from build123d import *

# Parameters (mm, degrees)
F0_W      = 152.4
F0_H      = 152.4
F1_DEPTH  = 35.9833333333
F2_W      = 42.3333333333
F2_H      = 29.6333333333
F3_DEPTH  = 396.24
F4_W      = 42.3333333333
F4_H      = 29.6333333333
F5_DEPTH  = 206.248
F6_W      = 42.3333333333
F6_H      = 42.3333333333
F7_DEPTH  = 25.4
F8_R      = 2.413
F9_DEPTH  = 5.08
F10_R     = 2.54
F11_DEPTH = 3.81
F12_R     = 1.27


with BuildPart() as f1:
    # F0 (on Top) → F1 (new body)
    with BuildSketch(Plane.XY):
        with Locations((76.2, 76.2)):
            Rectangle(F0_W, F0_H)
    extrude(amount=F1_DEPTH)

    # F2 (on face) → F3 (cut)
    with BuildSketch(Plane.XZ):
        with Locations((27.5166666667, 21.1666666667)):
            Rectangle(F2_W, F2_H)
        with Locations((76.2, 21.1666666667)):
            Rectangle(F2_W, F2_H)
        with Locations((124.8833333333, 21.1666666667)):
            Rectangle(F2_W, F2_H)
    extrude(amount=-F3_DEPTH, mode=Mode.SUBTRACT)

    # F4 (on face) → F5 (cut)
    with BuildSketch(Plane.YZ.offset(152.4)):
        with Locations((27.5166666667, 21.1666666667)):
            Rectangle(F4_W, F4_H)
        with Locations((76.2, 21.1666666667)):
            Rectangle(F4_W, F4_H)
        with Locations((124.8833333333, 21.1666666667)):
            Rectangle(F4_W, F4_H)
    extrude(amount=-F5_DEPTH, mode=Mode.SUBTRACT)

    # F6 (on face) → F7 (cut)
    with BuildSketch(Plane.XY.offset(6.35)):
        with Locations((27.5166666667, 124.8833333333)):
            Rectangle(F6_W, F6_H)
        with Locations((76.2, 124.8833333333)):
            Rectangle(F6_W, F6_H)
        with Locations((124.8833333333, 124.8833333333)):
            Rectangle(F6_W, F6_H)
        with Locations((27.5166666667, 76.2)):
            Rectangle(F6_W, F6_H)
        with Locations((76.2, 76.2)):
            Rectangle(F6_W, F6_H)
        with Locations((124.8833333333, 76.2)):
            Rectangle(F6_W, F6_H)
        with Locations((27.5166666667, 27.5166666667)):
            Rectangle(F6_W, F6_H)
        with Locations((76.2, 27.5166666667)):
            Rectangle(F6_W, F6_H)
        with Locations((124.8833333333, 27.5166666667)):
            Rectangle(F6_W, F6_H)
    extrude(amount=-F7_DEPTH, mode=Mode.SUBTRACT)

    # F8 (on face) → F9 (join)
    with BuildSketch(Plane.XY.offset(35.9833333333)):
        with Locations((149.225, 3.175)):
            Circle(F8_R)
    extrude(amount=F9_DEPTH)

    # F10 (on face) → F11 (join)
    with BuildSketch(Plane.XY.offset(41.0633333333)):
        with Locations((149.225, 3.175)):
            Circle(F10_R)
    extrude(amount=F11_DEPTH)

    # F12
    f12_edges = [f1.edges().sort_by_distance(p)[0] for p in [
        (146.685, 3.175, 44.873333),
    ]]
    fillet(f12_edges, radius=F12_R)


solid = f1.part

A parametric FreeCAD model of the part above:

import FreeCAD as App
import Part
import Sketcher
Q = App.Units.Quantity


def edges_at(feature, points):
    """Names of the edges that pass closest to the given points."""
    edges = feature.Shape.Edges
    near = lambda p: min(range(len(edges)), key=lambda i: edges[i].distToShape(Part.Vertex(*p))[0])
    return sorted({f"Edge{near(p) + 1}" for p in points})


def add_polygon(sketch, points):
    """Adds a closed chain of lines whose ends are joined by coincident constraints."""
    first, n = sketch.GeometryCount, len(points)
    for a, b in zip(points, points[1:] + points[:1]):
        sketch.addGeometry(Part.LineSegment(App.Vector(*a, 0), App.Vector(*b, 0)), False)
    for i in range(n):
        sketch.addConstraint(Sketcher.Constraint("Coincident", first + i, 2, first + (i + 1) % n, 1))

doc = App.newDocument("Part")
body = doc.addObject("PartDesign::Body", "Body")

# Sketch on XY plane
sketch1 = body.newObject("Sketcher::SketchObject", "Sketch")
sketch1.AttachmentSupport = (doc.getObject("XY_Plane"), [""])
sketch1.MapMode = "FlatFace"
add_polygon(sketch1, [(0, 152), (0, 0), (152, 0), (152, 152)])  # lines 0-3
sketch1.addConstraint([
    Sketcher.Constraint("Vertical", 0),
    Sketcher.Constraint("Horizontal", 1),
    Sketcher.Constraint("Vertical", 2),
    Sketcher.Constraint("Horizontal", 3),
    Sketcher.Constraint("Coincident", 0, 2, -1, 1),
    Sketcher.Constraint("Equal", 3, 0),
    Sketcher.Constraint("DistanceX", 1, 1, 1, 2, Q("6 in")),
])
pad1 = body.newObject("PartDesign::Pad", "Pad")
pad1.Profile = sketch1
pad1.Length = 35.983333

# Sketch on XZ plane
sketch2 = body.newObject("Sketcher::SketchObject", "Sketch001")
sketch2.AttachmentSupport = (doc.getObject("XZ_Plane"), [""])
sketch2.MapMode = "FlatFace"
add_polygon(sketch2, [(6, 36), (6, 6), (49, 6), (49, 36)])  # lines 0-3
add_polygon(sketch2, [(55, 36), (55, 6), (97, 6), (97, 36)])  # lines 4-7
add_polygon(sketch2, [(104, 36), (104, 6), (146, 6), (146, 36)])  # lines 8-11
sketch2.addConstraint([
    Sketcher.Constraint("Vertical", 0),
    Sketcher.Constraint("Horizontal", 1),
    Sketcher.Constraint("Vertical", 2),
    Sketcher.Constraint("Horizontal", 3),
    Sketcher.Constraint("Vertical", 4),
    Sketcher.Constraint("Horizontal", 5),
    Sketcher.Constraint("Vertical", 6),
    Sketcher.Constraint("Horizontal", 7),
    Sketcher.Constraint("Vertical", 8),
    Sketcher.Constraint("Horizontal", 9),
    Sketcher.Constraint("Vertical", 10),
    Sketcher.Constraint("Horizontal", 11),
    Sketcher.Constraint("Horizontal", 1, 2, 4, 2),
    Sketcher.Constraint("Horizontal", 3, 2, 6, 2),
    Sketcher.Constraint("Horizontal", 5, 2, 8, 2),
    Sketcher.Constraint("Horizontal", 7, 2, 10, 2),
    Sketcher.Constraint("Equal", 3, 5),
    Sketcher.Constraint("Equal", 7, 9),
    Sketcher.Constraint("DistanceX", -1, 1, 0, 2, Q("0.25 in")),
    Sketcher.Constraint("DistanceY", -1, 1, 0, 2, Q("0.25 in")),
    Sketcher.Constraint("DistanceX", -1, 1, 9, 2, Q("5.75 in")),
    Sketcher.Constraint("DistanceX", 1, 2, 4, 2, Q("0.25 in")),
    Sketcher.Constraint("DistanceX", 5, 2, 8, 2, Q("0.25 in")),
    Sketcher.Constraint("DistanceY", 0, 2, 0, 1, 29.633333),
])
pocket1 = body.newObject("PartDesign::Pocket", "Pocket")
pocket1.Profile = sketch2
pocket1.Length = Q("15.6 in")

# Sketch on YZ plane
sketch3 = body.newObject("Sketcher::SketchObject", "Sketch002")
sketch3.AttachmentSupport = (doc.getObject("YZ_Plane"), [""])
sketch3.MapMode = "FlatFace"
sketch3.AttachmentOffset = App.Placement(App.Vector(0, 0, 6 * 25.4), App.Rotation())
add_polygon(sketch3, [(6, 36), (6, 6), (49, 6), (49, 36)])  # lines 0-3
add_polygon(sketch3, [(55, 36), (55, 6), (97, 6), (97, 36)])  # lines 4-7
add_polygon(sketch3, [(104, 36), (104, 6), (146, 6), (146, 36)])  # lines 8-11
sketch3.addConstraint([
    Sketcher.Constraint("Vertical", 0),
    Sketcher.Constraint("Horizontal", 1),
    Sketcher.Constraint("Vertical", 2),
    Sketcher.Constraint("Horizontal", 3),
    Sketcher.Constraint("Vertical", 4),
    Sketcher.Constraint("Horizontal", 5),
    Sketcher.Constraint("Vertical", 6),
    Sketcher.Constraint("Horizontal", 7),
    Sketcher.Constraint("Vertical", 8),
    Sketcher.Constraint("Horizontal", 9),
    Sketcher.Constraint("Vertical", 10),
    Sketcher.Constraint("Horizontal", 11),
    Sketcher.Constraint("Horizontal", 1, 2, 4, 2),
    Sketcher.Constraint("Horizontal", 3, 2, 6, 2),
    Sketcher.Constraint("Horizontal", 5, 2, 8, 2),
    Sketcher.Constraint("Horizontal", 7, 2, 10, 2),
    Sketcher.Constraint("Equal", 3, 5),
    Sketcher.Constraint("Equal", 7, 9),
    Sketcher.Constraint("DistanceX", -1, 1, 0, 2, Q("0.25 in")),
    Sketcher.Constraint("DistanceY", -1, 1, 0, 2, Q("0.25 in")),
    Sketcher.Constraint("DistanceX", -1, 1, 9, 2, Q("5.75 in")),
    Sketcher.Constraint("DistanceX", 1, 2, 4, 2, Q("0.25 in")),
    Sketcher.Constraint("DistanceX", 5, 2, 8, 2, Q("0.25 in")),
    Sketcher.Constraint("DistanceY", 0, 2, 0, 1, 29.633333),
])
pocket2 = body.newObject("PartDesign::Pocket", "Pocket001")
pocket2.Profile = sketch3
pocket2.Length = Q("8.12 in")

# Sketch on XY plane
sketch4 = body.newObject("Sketcher::SketchObject", "Sketch003")
sketch4.AttachmentSupport = (doc.getObject("XY_Plane"), [""])
sketch4.MapMode = "FlatFace"
sketch4.AttachmentOffset = App.Placement(App.Vector(0, 0, 0.25 * 25.4), App.Rotation())
add_polygon(sketch4, [(6, 146), (6, 104), (49, 104), (49, 146)])  # lines 0-3
add_polygon(sketch4, [(55, 146), (55, 104), (97, 104), (97, 146)])  # lines 4-7
add_polygon(sketch4, [(104, 146), (104, 104), (146, 104), (146, 146)])  # lines 8-11
add_polygon(sketch4, [(6, 97), (6, 55), (49, 55), (49, 97)])  # lines 12-15
add_polygon(sketch4, [(55, 97), (55, 55), (97, 55), (97, 97)])  # lines 16-19
add_polygon(sketch4, [(104, 97), (104, 55), (146, 55), (146, 97)])  # lines 20-23
add_polygon(sketch4, [(6, 49), (6, 6), (49, 6), (49, 49)])  # lines 24-27
add_polygon(sketch4, [(55, 49), (55, 6), (97, 6), (97, 49)])  # lines 28-31
add_polygon(sketch4, [(104, 49), (104, 6), (146, 6), (146, 49)])  # lines 32-35
sketch4.addConstraint([
    Sketcher.Constraint("Vertical", 0),
    Sketcher.Constraint("Horizontal", 1),
    Sketcher.Constraint("Vertical", 2),
    Sketcher.Constraint("Horizontal", 3),
    Sketcher.Constraint("Vertical", 4),
    Sketcher.Constraint("Horizontal", 5),
    Sketcher.Constraint("Vertical", 6),
    Sketcher.Constraint("Horizontal", 7),
    Sketcher.Constraint("Vertical", 8),
    Sketcher.Constraint("Horizontal", 9),
    Sketcher.Constraint("Vertical", 10),
    Sketcher.Constraint("Horizontal", 11),
    Sketcher.Constraint("Vertical", 12),
    Sketcher.Constraint("Horizontal", 13),
    Sketcher.Constraint("Vertical", 14),
    Sketcher.Constraint("Horizontal", 15),
    Sketcher.Constraint("Vertical", 16),
    Sketcher.Constraint("Horizontal", 17),
    Sketcher.Constraint("Vertical", 18),
    Sketcher.Constraint("Horizontal", 19),
    Sketcher.Constraint("Vertical", 20),
    Sketcher.Constraint("Horizontal", 21),
    Sketcher.Constraint("Vertical", 22),
    Sketcher.Constraint("Horizontal", 23),
    Sketcher.Constraint("Vertical", 24),
    Sketcher.Constraint("Horizontal", 25),
    Sketcher.Constraint("Vertical", 26),
    Sketcher.Constraint("Horizontal", 27),
    Sketcher.Constraint("Vertical", 28),
    Sketcher.Constraint("Horizontal", 29),
    Sketcher.Constraint("Vertical", 30),
    Sketcher.Constraint("Horizontal", 31),
    Sketcher.Constraint("Vertical", 32),
    Sketcher.Constraint("Horizontal", 33),
    Sketcher.Constraint("Vertical", 34),
    Sketcher.Constraint("Horizontal", 35),
    Sketcher.Constraint("Horizontal", 1, 2, 4, 2),
    Sketcher.Constraint("Horizontal", 3, 2, 6, 2),
    Sketcher.Constraint("Horizontal", 5, 2, 8, 2),
    Sketcher.Constraint("Horizontal", 7, 2, 10, 2),
    Sketcher.Constraint("Horizontal", 13, 2, 16, 2),
    Sketcher.Constraint("Horizontal", 15, 2, 18, 2),
    Sketcher.Constraint("Horizontal", 17, 2, 20, 2),
    Sketcher.Constraint("Horizontal", 19, 2, 22, 2),
    Sketcher.Constraint("Horizontal", 25, 2, 28, 2),
    Sketcher.Constraint("Horizontal", 27, 2, 30, 2),
    Sketcher.Constraint("Horizontal", 29, 2, 32, 2),
    Sketcher.Constraint("Horizontal", 31, 2, 34, 2),
    Sketcher.Constraint("Vertical", 3, 2, 12, 2),
    Sketcher.Constraint("Vertical", 2, 2, 13, 2),
    Sketcher.Constraint("Vertical", 7, 2, 16, 2),
    Sketcher.Constraint("Vertical", 6, 2, 17, 2),
    Sketcher.Constraint("Vertical", 11, 2, 20, 2),
    Sketcher.Constraint("Vertical", 10, 2, 21, 2),
    Sketcher.Constraint("Vertical", 15, 2, 24, 2),
    Sketcher.Constraint("Vertical", 14, 2, 25, 2),
    Sketcher.Constraint("Vertical", 19, 2, 28, 2),
    Sketcher.Constraint("Vertical", 18, 2, 29, 2),
    Sketcher.Constraint("Vertical", 23, 2, 32, 2),
    Sketcher.Constraint("Vertical", 22, 2, 33, 2),
    Sketcher.Constraint("Equal", 3, 5),
    Sketcher.Constraint("Equal", 7, 9),
    Sketcher.Constraint("Equal", 35, 0),
    Sketcher.Constraint("Equal", 10, 12),
    Sketcher.Constraint("Equal", 22, 24),
    Sketcher.Constraint("DistanceX", -1, 1, 0, 2, Q("0.25 in")),
    Sketcher.Constraint("DistanceY", -1, 1, 2, 2, Q("5.75 in")),
    Sketcher.Constraint("DistanceX", -1, 1, 9, 2, Q("5.75 in")),
    Sketcher.Constraint("DistanceY", -1, 1, 24, 2, Q("0.25 in")),
    Sketcher.Constraint("DistanceX", 1, 2, 4, 2, Q("0.25 in")),
    Sketcher.Constraint("DistanceX", 5, 2, 8, 2, Q("0.25 in")),
    Sketcher.Constraint("DistanceY", 14, 2, 1, 2, Q("0.25 in")),
])
pocket3 = body.newObject("PartDesign::Pocket", "Pocket002")
pocket3.Profile = sketch4
pocket3.Length = Q("1 in")

# Sketch on XY plane
sketch5 = body.newObject("Sketcher::SketchObject", "Sketch004")
sketch5.AttachmentSupport = (doc.getObject("XY_Plane"), [""])
sketch5.MapMode = "FlatFace"
sketch5.AttachmentOffset = App.Placement(App.Vector(0, 0, 35.983333), App.Rotation())
sketch5.addGeometry(Part.Circle(App.Vector(149.2, 3.2, 0), App.Vector(0, 0, 1), 2.4), False)
sketch5.addConstraint([
    Sketcher.Constraint("Diameter", 0, Q("0.19 in")),
    Sketcher.Constraint("DistanceX", -1, 1, 0, 3, Q("5.875 in")),
    Sketcher.Constraint("DistanceY", -1, 1, 0, 3, Q("0.125 in")),
])
pad2 = body.newObject("PartDesign::Pad", "Pad001")
pad2.Profile = sketch5
pad2.Length = Q("0.2 in")

# Sketch on XY plane
sketch6 = body.newObject("Sketcher::SketchObject", "Sketch005")
sketch6.AttachmentSupport = (doc.getObject("XY_Plane"), [""])
sketch6.MapMode = "FlatFace"
sketch6.AttachmentOffset = App.Placement(App.Vector(0, 0, 41.063333), App.Rotation())
sketch6.addGeometry(Part.Circle(App.Vector(149.2, 3.2, 0), App.Vector(0, 0, 1), 2.5), False)
sketch6.addConstraint([
    Sketcher.Constraint("Diameter", 0, Q("0.2 in")),
    Sketcher.Constraint("DistanceX", -1, 1, 0, 3, Q("5.875 in")),
    Sketcher.Constraint("DistanceY", -1, 1, 0, 3, Q("0.125 in")),
])
pad3 = body.newObject("PartDesign::Pad", "Pad002")
pad3.Profile = sketch6
pad3.Length = Q("0.15 in")
doc.recompute()

fillet = body.newObject("PartDesign::Fillet", "Fillet")
fillet.Base = (pad3, edges_at(pad3, [(146.685, 3.175, 44.873)]))
fillet.Radius = Q("0.05 in")

doc.recompute()
